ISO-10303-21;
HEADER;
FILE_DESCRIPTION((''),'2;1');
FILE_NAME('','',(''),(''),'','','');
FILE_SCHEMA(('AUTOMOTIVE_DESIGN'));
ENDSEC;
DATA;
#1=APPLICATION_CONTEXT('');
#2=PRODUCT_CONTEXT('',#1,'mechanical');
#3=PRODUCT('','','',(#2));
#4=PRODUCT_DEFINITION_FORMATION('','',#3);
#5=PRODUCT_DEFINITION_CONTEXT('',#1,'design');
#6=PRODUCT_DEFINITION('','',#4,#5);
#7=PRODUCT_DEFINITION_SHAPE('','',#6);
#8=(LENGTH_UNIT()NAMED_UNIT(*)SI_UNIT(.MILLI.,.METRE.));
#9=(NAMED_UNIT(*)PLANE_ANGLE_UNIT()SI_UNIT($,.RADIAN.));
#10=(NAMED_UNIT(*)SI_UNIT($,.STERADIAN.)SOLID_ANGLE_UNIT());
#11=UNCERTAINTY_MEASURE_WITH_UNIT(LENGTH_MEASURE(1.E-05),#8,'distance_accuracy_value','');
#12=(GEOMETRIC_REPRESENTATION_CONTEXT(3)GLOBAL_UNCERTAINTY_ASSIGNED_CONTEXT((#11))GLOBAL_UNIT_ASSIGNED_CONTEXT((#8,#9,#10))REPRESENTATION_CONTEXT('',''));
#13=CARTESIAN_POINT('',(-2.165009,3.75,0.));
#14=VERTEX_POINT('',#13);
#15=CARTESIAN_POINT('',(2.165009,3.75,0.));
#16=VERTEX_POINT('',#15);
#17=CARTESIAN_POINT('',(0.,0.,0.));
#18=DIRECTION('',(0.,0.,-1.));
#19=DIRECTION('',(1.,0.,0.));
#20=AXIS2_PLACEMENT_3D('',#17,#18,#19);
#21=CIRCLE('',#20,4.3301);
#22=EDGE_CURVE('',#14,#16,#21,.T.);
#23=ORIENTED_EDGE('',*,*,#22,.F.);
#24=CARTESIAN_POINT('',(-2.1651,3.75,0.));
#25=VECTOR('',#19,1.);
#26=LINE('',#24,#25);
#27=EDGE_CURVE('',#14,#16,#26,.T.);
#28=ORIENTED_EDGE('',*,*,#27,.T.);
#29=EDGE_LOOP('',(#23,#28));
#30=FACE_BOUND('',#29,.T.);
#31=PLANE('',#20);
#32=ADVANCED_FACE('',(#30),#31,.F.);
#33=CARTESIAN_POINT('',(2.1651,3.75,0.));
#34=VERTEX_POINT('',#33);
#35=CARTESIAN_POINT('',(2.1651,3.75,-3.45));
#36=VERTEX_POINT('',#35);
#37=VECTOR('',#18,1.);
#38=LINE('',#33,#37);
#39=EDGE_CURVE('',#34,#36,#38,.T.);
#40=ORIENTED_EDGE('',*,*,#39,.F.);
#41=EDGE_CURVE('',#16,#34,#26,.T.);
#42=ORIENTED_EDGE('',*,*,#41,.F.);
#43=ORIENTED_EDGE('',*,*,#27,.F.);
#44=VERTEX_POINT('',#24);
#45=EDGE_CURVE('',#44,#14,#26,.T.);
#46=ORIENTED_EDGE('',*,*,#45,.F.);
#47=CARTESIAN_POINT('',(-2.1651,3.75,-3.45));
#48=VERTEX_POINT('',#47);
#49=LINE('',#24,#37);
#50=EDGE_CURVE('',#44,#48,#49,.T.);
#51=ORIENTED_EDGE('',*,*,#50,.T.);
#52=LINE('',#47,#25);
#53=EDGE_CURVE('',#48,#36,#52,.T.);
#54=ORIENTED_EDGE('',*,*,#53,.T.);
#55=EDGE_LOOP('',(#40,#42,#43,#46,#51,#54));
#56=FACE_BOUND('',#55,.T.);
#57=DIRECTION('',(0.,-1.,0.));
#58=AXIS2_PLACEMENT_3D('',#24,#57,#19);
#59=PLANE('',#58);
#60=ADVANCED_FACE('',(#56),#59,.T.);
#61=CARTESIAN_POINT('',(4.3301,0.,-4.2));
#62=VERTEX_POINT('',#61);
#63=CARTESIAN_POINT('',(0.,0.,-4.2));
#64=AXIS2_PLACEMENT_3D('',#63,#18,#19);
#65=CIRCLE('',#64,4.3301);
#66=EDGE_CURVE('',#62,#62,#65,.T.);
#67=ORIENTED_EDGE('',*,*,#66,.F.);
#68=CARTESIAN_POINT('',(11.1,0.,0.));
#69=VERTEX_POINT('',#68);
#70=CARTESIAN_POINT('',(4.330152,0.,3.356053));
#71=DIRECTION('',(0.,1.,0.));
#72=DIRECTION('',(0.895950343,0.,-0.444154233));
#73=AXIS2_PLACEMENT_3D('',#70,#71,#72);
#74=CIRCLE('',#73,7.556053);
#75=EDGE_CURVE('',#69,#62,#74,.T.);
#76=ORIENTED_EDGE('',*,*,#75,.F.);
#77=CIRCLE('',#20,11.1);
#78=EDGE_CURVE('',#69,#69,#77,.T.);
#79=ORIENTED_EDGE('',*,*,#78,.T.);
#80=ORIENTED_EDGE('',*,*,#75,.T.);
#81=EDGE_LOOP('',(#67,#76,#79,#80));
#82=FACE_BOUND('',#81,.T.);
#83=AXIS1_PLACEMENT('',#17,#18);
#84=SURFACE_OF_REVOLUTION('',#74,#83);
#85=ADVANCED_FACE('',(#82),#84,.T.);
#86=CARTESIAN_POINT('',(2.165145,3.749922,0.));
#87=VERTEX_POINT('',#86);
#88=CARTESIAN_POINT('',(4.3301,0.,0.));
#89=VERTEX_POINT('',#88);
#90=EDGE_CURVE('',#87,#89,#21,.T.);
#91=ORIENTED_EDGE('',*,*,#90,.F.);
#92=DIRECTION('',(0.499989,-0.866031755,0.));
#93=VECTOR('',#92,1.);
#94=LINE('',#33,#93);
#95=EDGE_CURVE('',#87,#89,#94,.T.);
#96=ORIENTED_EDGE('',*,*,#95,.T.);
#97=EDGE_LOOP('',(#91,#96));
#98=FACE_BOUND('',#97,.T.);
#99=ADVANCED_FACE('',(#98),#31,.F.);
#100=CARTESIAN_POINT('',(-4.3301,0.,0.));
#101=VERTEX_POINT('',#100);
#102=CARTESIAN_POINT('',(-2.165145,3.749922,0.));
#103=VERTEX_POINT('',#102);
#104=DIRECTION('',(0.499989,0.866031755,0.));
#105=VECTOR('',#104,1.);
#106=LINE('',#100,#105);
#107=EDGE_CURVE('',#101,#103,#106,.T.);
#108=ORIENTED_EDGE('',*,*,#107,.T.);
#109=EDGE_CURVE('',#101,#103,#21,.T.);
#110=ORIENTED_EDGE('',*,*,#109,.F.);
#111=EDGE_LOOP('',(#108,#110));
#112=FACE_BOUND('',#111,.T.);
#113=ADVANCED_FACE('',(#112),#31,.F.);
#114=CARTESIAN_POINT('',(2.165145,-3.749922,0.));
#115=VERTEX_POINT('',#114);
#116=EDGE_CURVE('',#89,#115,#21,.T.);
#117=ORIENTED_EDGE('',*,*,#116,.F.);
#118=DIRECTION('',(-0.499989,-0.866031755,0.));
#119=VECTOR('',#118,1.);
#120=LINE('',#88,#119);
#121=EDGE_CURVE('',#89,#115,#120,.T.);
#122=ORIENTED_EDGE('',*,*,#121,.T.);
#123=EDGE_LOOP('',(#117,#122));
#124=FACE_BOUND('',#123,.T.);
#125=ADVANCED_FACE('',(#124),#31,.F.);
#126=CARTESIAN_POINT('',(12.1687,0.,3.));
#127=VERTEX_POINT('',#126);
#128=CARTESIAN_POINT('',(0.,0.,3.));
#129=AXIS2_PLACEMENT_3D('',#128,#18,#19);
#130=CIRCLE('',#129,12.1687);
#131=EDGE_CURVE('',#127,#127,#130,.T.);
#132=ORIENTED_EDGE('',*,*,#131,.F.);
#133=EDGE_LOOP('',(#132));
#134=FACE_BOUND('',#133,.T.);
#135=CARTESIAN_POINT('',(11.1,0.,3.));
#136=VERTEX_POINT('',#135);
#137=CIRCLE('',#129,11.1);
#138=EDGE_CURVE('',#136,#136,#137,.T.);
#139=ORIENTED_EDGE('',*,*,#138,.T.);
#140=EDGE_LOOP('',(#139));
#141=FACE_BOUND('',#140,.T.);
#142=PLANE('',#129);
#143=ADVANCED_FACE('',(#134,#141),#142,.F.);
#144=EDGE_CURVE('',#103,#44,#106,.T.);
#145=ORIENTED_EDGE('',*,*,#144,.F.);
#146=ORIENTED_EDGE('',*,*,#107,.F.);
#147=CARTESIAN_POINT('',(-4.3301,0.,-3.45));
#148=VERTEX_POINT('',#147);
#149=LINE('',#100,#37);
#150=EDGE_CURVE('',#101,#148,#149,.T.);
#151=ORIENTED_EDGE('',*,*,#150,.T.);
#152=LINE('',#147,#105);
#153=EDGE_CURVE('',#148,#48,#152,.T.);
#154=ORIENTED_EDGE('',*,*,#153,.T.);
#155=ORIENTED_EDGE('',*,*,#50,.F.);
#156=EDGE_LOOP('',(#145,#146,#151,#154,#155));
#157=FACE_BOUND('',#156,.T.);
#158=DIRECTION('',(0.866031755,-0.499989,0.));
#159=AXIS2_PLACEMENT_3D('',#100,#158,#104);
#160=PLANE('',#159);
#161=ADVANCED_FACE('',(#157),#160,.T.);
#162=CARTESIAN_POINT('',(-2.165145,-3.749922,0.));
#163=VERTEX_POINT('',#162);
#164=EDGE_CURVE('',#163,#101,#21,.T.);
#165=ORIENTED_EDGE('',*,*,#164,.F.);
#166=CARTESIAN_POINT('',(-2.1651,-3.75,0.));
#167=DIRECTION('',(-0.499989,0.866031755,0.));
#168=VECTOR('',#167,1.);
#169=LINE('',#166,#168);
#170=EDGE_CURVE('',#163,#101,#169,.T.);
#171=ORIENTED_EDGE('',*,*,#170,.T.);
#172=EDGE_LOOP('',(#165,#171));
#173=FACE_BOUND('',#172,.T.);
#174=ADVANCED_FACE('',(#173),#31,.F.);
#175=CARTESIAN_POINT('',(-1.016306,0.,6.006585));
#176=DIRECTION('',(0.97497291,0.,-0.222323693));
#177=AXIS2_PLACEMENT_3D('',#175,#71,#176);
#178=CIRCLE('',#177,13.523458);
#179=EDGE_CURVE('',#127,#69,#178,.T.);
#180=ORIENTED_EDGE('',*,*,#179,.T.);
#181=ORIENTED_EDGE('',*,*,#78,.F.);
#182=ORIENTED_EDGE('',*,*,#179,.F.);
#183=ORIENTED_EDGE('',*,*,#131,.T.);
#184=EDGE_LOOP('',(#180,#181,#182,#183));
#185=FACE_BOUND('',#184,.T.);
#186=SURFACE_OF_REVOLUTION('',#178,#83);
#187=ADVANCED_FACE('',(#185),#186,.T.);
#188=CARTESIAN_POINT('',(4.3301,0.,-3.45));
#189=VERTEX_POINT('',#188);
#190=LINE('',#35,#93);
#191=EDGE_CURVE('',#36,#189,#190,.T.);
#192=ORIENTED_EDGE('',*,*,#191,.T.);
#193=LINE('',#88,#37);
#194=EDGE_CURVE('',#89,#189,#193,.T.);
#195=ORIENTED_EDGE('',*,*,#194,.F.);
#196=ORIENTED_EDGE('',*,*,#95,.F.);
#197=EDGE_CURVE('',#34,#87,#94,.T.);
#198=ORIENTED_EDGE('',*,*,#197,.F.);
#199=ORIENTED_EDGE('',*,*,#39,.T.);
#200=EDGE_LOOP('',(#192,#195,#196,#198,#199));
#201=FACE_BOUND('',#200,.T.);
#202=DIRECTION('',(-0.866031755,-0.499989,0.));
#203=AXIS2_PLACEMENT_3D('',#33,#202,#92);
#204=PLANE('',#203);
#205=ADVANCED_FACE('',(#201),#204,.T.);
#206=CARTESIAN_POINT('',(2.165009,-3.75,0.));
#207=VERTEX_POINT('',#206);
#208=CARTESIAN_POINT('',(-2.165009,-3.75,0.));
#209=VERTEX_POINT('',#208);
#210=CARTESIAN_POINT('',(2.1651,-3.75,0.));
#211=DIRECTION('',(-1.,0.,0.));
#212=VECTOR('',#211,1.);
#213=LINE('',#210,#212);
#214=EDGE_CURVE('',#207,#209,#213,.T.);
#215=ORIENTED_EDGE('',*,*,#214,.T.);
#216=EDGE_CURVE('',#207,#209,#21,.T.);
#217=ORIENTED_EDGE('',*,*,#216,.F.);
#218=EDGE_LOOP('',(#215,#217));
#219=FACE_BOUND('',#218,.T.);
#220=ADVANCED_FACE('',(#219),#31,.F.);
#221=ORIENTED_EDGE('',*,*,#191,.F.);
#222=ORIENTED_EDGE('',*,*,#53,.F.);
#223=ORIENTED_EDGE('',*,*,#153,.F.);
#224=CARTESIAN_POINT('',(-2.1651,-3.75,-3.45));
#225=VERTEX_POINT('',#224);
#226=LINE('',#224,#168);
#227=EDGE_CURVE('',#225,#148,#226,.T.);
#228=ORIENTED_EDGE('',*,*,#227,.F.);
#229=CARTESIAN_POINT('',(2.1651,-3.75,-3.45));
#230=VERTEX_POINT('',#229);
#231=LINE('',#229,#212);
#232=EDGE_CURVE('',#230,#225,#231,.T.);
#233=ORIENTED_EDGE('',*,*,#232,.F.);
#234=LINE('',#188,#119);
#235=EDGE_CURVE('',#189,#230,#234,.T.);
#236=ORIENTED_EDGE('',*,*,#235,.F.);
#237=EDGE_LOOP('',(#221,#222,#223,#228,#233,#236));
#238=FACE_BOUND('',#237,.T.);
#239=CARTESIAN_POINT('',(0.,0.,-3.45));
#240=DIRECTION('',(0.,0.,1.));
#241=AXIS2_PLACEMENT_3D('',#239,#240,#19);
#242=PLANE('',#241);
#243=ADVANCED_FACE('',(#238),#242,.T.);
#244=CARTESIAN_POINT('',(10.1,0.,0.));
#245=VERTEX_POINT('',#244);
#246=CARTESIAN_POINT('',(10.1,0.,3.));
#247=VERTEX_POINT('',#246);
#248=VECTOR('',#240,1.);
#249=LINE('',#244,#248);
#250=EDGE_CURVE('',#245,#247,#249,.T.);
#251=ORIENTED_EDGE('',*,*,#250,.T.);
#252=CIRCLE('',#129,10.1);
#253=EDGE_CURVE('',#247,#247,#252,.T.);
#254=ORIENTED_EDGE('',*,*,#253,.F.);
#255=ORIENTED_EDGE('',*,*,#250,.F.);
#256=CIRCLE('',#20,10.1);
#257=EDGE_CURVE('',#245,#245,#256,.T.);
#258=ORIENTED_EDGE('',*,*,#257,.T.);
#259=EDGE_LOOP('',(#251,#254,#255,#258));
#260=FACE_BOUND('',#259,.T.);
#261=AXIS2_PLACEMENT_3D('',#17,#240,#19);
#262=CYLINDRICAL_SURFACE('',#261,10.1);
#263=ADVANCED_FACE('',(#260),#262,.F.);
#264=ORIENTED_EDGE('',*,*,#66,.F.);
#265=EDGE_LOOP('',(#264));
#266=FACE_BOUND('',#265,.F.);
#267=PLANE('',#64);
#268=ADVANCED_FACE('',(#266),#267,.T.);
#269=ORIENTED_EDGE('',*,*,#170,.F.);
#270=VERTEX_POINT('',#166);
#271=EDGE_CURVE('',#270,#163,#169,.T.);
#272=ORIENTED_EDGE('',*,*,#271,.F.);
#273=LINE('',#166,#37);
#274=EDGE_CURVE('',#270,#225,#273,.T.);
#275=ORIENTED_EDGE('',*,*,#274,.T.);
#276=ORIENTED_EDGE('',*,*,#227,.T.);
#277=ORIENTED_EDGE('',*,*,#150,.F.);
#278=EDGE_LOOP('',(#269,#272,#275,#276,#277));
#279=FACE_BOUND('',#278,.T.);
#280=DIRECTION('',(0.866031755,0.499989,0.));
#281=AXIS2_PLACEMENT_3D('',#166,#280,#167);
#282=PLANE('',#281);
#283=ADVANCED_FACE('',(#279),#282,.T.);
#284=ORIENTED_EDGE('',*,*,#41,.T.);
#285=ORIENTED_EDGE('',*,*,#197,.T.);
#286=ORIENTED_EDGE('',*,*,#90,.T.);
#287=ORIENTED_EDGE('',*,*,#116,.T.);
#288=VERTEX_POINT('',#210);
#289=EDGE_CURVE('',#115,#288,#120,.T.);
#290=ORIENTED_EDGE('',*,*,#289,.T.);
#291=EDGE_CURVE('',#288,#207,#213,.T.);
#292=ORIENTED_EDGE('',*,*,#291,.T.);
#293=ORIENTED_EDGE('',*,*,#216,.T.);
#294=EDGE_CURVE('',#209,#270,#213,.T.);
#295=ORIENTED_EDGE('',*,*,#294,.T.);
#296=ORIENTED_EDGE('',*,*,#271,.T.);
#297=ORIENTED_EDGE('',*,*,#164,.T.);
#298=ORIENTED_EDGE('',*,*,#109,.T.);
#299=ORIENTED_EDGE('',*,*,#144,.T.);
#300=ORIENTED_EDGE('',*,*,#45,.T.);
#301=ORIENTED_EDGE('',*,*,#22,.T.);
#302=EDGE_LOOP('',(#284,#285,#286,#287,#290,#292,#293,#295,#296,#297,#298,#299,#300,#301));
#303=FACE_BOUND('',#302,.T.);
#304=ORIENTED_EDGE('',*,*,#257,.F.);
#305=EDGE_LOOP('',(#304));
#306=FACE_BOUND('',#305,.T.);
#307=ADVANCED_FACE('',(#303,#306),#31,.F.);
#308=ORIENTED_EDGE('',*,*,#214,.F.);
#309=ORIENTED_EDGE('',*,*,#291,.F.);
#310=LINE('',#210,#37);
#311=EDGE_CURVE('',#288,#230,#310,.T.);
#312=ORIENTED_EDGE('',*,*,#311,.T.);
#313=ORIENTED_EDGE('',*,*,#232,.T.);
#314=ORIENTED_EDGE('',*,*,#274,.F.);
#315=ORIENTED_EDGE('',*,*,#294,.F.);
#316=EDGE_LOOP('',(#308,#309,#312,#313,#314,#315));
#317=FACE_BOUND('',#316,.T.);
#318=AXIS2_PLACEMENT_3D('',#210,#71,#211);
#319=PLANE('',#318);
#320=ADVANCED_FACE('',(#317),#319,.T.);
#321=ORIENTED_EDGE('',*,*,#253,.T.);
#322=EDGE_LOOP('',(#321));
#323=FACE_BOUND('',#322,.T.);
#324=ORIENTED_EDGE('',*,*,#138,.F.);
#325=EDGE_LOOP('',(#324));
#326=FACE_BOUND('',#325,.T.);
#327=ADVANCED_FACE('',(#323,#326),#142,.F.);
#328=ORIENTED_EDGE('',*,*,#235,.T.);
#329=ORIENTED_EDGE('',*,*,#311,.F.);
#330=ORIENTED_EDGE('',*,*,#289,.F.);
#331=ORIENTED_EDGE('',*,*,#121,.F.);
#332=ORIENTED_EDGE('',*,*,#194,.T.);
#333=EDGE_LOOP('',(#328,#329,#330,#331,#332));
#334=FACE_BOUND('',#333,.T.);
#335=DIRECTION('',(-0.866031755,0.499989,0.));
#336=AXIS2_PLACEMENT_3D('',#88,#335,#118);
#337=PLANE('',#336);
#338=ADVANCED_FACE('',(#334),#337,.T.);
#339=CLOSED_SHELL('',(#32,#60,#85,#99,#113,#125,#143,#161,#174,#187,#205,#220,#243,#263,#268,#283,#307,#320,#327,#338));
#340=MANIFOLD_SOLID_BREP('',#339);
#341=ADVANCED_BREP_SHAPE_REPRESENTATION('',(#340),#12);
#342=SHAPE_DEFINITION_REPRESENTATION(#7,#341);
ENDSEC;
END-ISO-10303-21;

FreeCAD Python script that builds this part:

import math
import FreeCAD as App
import Part
import Sketcher
Q = App.Units.Quantity


def add_polygon(sketch, points):
    """Adds a closed chain of lines whose ends are joined by coincident constraints."""
    first, n = sketch.GeometryCount, len(points)
    for a, b in zip(points, points[1:] + points[:1]):
        sketch.addGeometry(Part.LineSegment(App.Vector(*a, 0), App.Vector(*b, 0)), False)
    for i in range(n):
        sketch.addConstraint(Sketcher.Constraint("Coincident", first + i, 2, first + (i + 1) % n, 1))

doc = App.newDocument("Part")
body = doc.addObject("PartDesign::Body", "Body")

# Sketch on XZ plane
sketch1 = body.newObject("Sketcher::SketchObject", "Sketch")
sketch1.AttachmentSupport = (doc.getObject("XZ_Plane"), [""])
sketch1.MapMode = "FlatFace"
sketch1.addGeometry([
    Part.LineSegment(App.Vector(0, -4.2, 0), App.Vector(0, 0, 0)),  # 0
    Part.LineSegment(App.Vector(0, 0, 0), App.Vector(10.1, 0, 0)),  # 1
    Part.LineSegment(App.Vector(10.1, 0, 0), App.Vector(10.1, 3, 0)),  # 2
    Part.LineSegment(App.Vector(10.1, 3, 0), App.Vector(12.2, 3, 0)),  # 3
    Part.ArcOfCircle(Part.Circle(App.Vector(-1, 6, 0), App.Vector(0, 0, 1), 13.5), math.radians(-26.37), math.radians(-12.85)),  # 4
    Part.ArcOfCircle(Part.Circle(App.Vector(4.3, 3.4, 0), App.Vector(0, 0, 1), 7.6), math.radians(-90), math.radians(-26)),  # 5
    Part.LineSegment(App.Vector(4.3, -4.2, 0), App.Vector(0, -4.2, 0)),  # 6
], False)
sketch1.addConstraint([
    Sketcher.Constraint("Coincident", 0, 2, 1, 1),
    Sketcher.Constraint("Coincident", 1, 2, 2, 1),
    Sketcher.Constraint("Coincident", 2, 2, 3, 1),
    Sketcher.Constraint("Coincident", 3, 2, 4, 2),
    Sketcher.Constraint("Tangent", 4, 1, 5, 2),
    Sketcher.Constraint("Tangent", 5, 1, 6, 1),
    Sketcher.Constraint("Coincident", 6, 2, 0, 1),
    Sketcher.Constraint("Vertical", 0),
    Sketcher.Constraint("Horizontal", 1),
    Sketcher.Constraint("Vertical", 2),
    Sketcher.Constraint("Horizontal", 3),
    Sketcher.Constraint("Horizontal", 6),
    Sketcher.Constraint("Coincident", 0, 2, -1, 1),
    Sketcher.Constraint("PointOnObject", 4, 1, -1),
    Sketcher.Constraint("DistanceY", 2, 1, 2, 2, 3.0),
    Sketcher.Constraint("DistanceY", 0, 1, 0, 2, 4.2),
    Sketcher.Constraint("DistanceX", 1, 1, 1, 2, 10.1),
    Sketcher.Constraint("DistanceX", 1, 2, 4, 1, 1.0),
    Sketcher.Constraint("DistanceX", 6, 2, 6, 1, 4.33),
    Sketcher.Constraint("Radius", 4, 13.5239),
])
revolution = body.newObject("PartDesign::Revolution", "Revolution")
revolution.Profile = sketch1
revolution.ReferenceAxis = (sketch1, ["V_Axis"])
revolution.Angle = 360

# Sketch on XY plane
sketch2 = body.newObject("Sketcher::SketchObject", "Sketch001")
sketch2.AttachmentSupport = (doc.getObject("XY_Plane"), [""])
sketch2.MapMode = "FlatFace"
add_polygon(sketch2, [(2.2, -3.8), (4.3, 0), (2.2, 3.8), (-2.2, 3.8), (-4.3, 0), (-2.2, -3.8)])  # lines 0-5
sketch2.addConstraint([
    Sketcher.Constraint("Horizontal", 2),
    Sketcher.Constraint("Horizontal", 5),
    Sketcher.Constraint("Symmetric", 0, 2, 3, 2, -1, 1),
    Sketcher.Constraint("Symmetric", 1, 2, 4, 2, -1, 1),
    Sketcher.Constraint("PointOnObject", 0, 2, -1),
    Sketcher.Constraint("Parallel", 0, 3),
    Sketcher.Constraint("Vertical", 2, 2, 4, 2),
    Sketcher.Constraint("DistanceY", 4, 2, 2, 2, 7.5),
    Sketcher.Constraint("Angle", 0, Q("60.0007 deg")),
    Sketcher.Constraint("DistanceX", -1, 1, 0, 2, 4.33),
])
pocket1 = body.newObject("PartDesign::Pocket", "Pocket")
pocket1.Profile = sketch2
pocket1.Length = 3.45

doc.recompute()
